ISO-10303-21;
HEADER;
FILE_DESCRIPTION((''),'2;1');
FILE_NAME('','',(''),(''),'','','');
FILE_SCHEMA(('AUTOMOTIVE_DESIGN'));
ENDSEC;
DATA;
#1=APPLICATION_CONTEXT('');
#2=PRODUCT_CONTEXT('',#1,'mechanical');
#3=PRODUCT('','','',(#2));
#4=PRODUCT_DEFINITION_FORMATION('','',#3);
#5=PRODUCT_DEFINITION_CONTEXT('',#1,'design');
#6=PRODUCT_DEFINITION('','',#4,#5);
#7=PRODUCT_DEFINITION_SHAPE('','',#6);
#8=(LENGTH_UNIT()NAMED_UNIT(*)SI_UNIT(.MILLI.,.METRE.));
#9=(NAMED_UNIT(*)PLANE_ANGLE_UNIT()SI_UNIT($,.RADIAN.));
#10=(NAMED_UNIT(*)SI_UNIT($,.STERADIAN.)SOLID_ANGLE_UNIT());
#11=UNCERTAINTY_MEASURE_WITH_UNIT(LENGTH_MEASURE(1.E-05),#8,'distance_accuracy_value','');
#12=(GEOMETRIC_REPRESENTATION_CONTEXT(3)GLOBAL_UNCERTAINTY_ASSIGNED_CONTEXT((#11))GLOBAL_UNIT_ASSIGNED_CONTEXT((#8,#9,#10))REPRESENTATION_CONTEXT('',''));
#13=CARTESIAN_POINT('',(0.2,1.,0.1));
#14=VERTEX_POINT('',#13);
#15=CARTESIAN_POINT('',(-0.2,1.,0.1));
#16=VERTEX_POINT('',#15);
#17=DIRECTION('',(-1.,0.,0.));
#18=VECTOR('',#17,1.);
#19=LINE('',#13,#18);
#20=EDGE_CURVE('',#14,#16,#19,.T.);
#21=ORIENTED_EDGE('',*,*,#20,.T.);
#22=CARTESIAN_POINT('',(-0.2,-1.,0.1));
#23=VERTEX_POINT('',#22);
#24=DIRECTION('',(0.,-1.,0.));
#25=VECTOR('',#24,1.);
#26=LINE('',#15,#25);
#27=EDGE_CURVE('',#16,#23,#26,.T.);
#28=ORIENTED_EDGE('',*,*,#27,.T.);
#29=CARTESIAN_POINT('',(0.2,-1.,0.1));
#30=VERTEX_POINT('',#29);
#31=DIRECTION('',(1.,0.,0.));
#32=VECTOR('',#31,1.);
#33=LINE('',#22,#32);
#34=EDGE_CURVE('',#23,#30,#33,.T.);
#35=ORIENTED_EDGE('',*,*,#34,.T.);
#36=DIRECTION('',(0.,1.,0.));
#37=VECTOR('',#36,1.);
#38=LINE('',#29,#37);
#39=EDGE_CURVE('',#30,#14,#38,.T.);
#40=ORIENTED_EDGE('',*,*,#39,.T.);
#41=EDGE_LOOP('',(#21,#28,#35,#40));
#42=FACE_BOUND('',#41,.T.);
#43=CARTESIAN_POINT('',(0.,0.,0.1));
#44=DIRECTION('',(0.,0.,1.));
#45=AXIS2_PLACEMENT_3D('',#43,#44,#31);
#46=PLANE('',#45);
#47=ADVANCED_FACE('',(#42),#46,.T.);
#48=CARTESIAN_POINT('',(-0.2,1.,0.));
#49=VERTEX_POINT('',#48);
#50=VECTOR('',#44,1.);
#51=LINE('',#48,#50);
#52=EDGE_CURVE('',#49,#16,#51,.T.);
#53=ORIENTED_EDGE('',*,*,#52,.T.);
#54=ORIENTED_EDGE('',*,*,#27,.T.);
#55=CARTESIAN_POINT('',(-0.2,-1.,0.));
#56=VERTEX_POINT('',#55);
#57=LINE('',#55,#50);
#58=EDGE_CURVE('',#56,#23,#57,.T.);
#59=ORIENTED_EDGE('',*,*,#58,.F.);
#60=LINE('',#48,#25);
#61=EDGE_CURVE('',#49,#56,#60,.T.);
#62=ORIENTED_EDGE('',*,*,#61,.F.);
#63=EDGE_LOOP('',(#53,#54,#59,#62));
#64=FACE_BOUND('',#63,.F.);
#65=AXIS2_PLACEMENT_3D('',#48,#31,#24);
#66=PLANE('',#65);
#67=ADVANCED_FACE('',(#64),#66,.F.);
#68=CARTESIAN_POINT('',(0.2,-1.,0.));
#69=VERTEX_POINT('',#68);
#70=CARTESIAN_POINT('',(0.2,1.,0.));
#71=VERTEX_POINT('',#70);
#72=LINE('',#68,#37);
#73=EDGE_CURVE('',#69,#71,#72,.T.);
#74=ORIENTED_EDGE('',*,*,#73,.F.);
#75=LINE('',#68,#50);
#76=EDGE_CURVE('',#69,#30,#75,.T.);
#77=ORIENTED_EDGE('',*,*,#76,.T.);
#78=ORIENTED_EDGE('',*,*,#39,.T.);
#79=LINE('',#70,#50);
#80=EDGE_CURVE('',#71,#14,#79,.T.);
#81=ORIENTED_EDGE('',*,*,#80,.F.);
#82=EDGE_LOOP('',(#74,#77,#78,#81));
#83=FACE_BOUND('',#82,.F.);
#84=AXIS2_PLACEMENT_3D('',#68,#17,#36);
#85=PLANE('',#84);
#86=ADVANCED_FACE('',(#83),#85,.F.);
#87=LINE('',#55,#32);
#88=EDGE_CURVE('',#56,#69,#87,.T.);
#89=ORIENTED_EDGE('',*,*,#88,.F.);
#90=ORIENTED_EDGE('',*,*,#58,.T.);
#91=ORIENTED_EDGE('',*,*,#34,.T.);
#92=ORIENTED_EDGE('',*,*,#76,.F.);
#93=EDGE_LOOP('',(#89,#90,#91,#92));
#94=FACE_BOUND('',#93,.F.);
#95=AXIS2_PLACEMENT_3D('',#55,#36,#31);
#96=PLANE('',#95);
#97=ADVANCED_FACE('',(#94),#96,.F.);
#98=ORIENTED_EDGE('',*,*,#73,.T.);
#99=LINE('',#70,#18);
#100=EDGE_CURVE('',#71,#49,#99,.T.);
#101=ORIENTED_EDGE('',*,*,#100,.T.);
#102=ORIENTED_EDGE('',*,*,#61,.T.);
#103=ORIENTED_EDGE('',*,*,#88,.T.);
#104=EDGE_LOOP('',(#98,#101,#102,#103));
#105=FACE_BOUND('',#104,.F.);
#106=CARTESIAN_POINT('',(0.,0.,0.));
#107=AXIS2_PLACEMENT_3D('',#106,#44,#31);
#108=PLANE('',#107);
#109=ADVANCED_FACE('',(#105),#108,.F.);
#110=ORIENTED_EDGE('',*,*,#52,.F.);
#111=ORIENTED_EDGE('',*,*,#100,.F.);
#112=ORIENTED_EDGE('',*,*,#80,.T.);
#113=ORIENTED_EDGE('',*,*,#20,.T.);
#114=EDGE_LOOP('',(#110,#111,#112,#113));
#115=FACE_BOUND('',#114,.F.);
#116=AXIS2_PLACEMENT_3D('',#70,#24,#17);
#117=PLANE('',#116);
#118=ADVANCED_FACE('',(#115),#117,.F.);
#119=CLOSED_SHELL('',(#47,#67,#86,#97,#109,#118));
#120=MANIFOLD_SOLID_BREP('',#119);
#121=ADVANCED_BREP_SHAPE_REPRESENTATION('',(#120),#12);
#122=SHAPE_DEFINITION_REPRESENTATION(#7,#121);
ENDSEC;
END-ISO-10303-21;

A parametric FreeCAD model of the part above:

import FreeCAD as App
import Part
import Sketcher

V = App.Vector
Q = App.Units.Quantity


def add_polygon(sketch, points):
    """Adds a closed chain of lines whose ends are joined by coincident constraints."""
    first, n = sketch.GeometryCount, len(points)
    for a, b in zip(points, points[1:] + points[:1]):
        sketch.addGeometry(Part.LineSegment(App.Vector(*a, 0), App.Vector(*b, 0)), False)
    for i in range(n):
        sketch.addConstraint(Sketcher.Constraint("Coincident", first + i, 2, first + (i + 1) % n, 1))

doc = App.newDocument("Part")
params = doc.addObject("Spreadsheet::Sheet", "Params")
for row, (alias, value) in enumerate([
    ("sketch1_height", "2 mm"),
    ("sketch1_width", "0.4 mm"),
    ("pad1_length", "0.1 mm"),
], start=1):
    params.set(f"A{row}", alias)
    params.set(f"B{row}", "=" + value)
    params.setAlias(f"B{row}", alias)

body = doc.addObject("PartDesign::Body", "Body")

# Sketch on XY plane
sketch1 = body.newObject("Sketcher::SketchObject", "Sketch")
sketch1.AttachmentSupport = (doc.getObject("XY_Plane"), [""])
sketch1.MapMode = "FlatFace"
add_polygon(sketch1, [(0.2, -1), (0.2, 1), (-0.2, 1), (-0.2, -1)])  # lines 0-3
sketch1.addConstraint(Sketcher.Constraint("Vertical", 0))
sketch1.addConstraint(Sketcher.Constraint("Horizontal", 1))
sketch1.addConstraint(Sketcher.Constraint("Vertical", 2))
sketch1.addConstraint(Sketcher.Constraint("Horizontal", 3))
sketch1.addConstraint(Sketcher.Constraint("Symmetric", 0, 2, 2, 2, -1, 1))
sketch1.addConstraint(Sketcher.Constraint("DistanceY", 0, 1, 0, 2, Q("2 mm")))
sketch1.addConstraint(Sketcher.Constraint("DistanceX", 1, 2, 1, 1, Q("0.4 mm")))
sketch1.setExpression("Constraints[9]", "Params.sketch1_height")
sketch1.setExpression("Constraints[10]", "Params.sketch1_width")
pad1 = body.newObject("PartDesign::Pad", "Pad")
pad1.Profile = sketch1
pad1.setExpression("Length", "Params.pad1_length")

doc.recompute()
